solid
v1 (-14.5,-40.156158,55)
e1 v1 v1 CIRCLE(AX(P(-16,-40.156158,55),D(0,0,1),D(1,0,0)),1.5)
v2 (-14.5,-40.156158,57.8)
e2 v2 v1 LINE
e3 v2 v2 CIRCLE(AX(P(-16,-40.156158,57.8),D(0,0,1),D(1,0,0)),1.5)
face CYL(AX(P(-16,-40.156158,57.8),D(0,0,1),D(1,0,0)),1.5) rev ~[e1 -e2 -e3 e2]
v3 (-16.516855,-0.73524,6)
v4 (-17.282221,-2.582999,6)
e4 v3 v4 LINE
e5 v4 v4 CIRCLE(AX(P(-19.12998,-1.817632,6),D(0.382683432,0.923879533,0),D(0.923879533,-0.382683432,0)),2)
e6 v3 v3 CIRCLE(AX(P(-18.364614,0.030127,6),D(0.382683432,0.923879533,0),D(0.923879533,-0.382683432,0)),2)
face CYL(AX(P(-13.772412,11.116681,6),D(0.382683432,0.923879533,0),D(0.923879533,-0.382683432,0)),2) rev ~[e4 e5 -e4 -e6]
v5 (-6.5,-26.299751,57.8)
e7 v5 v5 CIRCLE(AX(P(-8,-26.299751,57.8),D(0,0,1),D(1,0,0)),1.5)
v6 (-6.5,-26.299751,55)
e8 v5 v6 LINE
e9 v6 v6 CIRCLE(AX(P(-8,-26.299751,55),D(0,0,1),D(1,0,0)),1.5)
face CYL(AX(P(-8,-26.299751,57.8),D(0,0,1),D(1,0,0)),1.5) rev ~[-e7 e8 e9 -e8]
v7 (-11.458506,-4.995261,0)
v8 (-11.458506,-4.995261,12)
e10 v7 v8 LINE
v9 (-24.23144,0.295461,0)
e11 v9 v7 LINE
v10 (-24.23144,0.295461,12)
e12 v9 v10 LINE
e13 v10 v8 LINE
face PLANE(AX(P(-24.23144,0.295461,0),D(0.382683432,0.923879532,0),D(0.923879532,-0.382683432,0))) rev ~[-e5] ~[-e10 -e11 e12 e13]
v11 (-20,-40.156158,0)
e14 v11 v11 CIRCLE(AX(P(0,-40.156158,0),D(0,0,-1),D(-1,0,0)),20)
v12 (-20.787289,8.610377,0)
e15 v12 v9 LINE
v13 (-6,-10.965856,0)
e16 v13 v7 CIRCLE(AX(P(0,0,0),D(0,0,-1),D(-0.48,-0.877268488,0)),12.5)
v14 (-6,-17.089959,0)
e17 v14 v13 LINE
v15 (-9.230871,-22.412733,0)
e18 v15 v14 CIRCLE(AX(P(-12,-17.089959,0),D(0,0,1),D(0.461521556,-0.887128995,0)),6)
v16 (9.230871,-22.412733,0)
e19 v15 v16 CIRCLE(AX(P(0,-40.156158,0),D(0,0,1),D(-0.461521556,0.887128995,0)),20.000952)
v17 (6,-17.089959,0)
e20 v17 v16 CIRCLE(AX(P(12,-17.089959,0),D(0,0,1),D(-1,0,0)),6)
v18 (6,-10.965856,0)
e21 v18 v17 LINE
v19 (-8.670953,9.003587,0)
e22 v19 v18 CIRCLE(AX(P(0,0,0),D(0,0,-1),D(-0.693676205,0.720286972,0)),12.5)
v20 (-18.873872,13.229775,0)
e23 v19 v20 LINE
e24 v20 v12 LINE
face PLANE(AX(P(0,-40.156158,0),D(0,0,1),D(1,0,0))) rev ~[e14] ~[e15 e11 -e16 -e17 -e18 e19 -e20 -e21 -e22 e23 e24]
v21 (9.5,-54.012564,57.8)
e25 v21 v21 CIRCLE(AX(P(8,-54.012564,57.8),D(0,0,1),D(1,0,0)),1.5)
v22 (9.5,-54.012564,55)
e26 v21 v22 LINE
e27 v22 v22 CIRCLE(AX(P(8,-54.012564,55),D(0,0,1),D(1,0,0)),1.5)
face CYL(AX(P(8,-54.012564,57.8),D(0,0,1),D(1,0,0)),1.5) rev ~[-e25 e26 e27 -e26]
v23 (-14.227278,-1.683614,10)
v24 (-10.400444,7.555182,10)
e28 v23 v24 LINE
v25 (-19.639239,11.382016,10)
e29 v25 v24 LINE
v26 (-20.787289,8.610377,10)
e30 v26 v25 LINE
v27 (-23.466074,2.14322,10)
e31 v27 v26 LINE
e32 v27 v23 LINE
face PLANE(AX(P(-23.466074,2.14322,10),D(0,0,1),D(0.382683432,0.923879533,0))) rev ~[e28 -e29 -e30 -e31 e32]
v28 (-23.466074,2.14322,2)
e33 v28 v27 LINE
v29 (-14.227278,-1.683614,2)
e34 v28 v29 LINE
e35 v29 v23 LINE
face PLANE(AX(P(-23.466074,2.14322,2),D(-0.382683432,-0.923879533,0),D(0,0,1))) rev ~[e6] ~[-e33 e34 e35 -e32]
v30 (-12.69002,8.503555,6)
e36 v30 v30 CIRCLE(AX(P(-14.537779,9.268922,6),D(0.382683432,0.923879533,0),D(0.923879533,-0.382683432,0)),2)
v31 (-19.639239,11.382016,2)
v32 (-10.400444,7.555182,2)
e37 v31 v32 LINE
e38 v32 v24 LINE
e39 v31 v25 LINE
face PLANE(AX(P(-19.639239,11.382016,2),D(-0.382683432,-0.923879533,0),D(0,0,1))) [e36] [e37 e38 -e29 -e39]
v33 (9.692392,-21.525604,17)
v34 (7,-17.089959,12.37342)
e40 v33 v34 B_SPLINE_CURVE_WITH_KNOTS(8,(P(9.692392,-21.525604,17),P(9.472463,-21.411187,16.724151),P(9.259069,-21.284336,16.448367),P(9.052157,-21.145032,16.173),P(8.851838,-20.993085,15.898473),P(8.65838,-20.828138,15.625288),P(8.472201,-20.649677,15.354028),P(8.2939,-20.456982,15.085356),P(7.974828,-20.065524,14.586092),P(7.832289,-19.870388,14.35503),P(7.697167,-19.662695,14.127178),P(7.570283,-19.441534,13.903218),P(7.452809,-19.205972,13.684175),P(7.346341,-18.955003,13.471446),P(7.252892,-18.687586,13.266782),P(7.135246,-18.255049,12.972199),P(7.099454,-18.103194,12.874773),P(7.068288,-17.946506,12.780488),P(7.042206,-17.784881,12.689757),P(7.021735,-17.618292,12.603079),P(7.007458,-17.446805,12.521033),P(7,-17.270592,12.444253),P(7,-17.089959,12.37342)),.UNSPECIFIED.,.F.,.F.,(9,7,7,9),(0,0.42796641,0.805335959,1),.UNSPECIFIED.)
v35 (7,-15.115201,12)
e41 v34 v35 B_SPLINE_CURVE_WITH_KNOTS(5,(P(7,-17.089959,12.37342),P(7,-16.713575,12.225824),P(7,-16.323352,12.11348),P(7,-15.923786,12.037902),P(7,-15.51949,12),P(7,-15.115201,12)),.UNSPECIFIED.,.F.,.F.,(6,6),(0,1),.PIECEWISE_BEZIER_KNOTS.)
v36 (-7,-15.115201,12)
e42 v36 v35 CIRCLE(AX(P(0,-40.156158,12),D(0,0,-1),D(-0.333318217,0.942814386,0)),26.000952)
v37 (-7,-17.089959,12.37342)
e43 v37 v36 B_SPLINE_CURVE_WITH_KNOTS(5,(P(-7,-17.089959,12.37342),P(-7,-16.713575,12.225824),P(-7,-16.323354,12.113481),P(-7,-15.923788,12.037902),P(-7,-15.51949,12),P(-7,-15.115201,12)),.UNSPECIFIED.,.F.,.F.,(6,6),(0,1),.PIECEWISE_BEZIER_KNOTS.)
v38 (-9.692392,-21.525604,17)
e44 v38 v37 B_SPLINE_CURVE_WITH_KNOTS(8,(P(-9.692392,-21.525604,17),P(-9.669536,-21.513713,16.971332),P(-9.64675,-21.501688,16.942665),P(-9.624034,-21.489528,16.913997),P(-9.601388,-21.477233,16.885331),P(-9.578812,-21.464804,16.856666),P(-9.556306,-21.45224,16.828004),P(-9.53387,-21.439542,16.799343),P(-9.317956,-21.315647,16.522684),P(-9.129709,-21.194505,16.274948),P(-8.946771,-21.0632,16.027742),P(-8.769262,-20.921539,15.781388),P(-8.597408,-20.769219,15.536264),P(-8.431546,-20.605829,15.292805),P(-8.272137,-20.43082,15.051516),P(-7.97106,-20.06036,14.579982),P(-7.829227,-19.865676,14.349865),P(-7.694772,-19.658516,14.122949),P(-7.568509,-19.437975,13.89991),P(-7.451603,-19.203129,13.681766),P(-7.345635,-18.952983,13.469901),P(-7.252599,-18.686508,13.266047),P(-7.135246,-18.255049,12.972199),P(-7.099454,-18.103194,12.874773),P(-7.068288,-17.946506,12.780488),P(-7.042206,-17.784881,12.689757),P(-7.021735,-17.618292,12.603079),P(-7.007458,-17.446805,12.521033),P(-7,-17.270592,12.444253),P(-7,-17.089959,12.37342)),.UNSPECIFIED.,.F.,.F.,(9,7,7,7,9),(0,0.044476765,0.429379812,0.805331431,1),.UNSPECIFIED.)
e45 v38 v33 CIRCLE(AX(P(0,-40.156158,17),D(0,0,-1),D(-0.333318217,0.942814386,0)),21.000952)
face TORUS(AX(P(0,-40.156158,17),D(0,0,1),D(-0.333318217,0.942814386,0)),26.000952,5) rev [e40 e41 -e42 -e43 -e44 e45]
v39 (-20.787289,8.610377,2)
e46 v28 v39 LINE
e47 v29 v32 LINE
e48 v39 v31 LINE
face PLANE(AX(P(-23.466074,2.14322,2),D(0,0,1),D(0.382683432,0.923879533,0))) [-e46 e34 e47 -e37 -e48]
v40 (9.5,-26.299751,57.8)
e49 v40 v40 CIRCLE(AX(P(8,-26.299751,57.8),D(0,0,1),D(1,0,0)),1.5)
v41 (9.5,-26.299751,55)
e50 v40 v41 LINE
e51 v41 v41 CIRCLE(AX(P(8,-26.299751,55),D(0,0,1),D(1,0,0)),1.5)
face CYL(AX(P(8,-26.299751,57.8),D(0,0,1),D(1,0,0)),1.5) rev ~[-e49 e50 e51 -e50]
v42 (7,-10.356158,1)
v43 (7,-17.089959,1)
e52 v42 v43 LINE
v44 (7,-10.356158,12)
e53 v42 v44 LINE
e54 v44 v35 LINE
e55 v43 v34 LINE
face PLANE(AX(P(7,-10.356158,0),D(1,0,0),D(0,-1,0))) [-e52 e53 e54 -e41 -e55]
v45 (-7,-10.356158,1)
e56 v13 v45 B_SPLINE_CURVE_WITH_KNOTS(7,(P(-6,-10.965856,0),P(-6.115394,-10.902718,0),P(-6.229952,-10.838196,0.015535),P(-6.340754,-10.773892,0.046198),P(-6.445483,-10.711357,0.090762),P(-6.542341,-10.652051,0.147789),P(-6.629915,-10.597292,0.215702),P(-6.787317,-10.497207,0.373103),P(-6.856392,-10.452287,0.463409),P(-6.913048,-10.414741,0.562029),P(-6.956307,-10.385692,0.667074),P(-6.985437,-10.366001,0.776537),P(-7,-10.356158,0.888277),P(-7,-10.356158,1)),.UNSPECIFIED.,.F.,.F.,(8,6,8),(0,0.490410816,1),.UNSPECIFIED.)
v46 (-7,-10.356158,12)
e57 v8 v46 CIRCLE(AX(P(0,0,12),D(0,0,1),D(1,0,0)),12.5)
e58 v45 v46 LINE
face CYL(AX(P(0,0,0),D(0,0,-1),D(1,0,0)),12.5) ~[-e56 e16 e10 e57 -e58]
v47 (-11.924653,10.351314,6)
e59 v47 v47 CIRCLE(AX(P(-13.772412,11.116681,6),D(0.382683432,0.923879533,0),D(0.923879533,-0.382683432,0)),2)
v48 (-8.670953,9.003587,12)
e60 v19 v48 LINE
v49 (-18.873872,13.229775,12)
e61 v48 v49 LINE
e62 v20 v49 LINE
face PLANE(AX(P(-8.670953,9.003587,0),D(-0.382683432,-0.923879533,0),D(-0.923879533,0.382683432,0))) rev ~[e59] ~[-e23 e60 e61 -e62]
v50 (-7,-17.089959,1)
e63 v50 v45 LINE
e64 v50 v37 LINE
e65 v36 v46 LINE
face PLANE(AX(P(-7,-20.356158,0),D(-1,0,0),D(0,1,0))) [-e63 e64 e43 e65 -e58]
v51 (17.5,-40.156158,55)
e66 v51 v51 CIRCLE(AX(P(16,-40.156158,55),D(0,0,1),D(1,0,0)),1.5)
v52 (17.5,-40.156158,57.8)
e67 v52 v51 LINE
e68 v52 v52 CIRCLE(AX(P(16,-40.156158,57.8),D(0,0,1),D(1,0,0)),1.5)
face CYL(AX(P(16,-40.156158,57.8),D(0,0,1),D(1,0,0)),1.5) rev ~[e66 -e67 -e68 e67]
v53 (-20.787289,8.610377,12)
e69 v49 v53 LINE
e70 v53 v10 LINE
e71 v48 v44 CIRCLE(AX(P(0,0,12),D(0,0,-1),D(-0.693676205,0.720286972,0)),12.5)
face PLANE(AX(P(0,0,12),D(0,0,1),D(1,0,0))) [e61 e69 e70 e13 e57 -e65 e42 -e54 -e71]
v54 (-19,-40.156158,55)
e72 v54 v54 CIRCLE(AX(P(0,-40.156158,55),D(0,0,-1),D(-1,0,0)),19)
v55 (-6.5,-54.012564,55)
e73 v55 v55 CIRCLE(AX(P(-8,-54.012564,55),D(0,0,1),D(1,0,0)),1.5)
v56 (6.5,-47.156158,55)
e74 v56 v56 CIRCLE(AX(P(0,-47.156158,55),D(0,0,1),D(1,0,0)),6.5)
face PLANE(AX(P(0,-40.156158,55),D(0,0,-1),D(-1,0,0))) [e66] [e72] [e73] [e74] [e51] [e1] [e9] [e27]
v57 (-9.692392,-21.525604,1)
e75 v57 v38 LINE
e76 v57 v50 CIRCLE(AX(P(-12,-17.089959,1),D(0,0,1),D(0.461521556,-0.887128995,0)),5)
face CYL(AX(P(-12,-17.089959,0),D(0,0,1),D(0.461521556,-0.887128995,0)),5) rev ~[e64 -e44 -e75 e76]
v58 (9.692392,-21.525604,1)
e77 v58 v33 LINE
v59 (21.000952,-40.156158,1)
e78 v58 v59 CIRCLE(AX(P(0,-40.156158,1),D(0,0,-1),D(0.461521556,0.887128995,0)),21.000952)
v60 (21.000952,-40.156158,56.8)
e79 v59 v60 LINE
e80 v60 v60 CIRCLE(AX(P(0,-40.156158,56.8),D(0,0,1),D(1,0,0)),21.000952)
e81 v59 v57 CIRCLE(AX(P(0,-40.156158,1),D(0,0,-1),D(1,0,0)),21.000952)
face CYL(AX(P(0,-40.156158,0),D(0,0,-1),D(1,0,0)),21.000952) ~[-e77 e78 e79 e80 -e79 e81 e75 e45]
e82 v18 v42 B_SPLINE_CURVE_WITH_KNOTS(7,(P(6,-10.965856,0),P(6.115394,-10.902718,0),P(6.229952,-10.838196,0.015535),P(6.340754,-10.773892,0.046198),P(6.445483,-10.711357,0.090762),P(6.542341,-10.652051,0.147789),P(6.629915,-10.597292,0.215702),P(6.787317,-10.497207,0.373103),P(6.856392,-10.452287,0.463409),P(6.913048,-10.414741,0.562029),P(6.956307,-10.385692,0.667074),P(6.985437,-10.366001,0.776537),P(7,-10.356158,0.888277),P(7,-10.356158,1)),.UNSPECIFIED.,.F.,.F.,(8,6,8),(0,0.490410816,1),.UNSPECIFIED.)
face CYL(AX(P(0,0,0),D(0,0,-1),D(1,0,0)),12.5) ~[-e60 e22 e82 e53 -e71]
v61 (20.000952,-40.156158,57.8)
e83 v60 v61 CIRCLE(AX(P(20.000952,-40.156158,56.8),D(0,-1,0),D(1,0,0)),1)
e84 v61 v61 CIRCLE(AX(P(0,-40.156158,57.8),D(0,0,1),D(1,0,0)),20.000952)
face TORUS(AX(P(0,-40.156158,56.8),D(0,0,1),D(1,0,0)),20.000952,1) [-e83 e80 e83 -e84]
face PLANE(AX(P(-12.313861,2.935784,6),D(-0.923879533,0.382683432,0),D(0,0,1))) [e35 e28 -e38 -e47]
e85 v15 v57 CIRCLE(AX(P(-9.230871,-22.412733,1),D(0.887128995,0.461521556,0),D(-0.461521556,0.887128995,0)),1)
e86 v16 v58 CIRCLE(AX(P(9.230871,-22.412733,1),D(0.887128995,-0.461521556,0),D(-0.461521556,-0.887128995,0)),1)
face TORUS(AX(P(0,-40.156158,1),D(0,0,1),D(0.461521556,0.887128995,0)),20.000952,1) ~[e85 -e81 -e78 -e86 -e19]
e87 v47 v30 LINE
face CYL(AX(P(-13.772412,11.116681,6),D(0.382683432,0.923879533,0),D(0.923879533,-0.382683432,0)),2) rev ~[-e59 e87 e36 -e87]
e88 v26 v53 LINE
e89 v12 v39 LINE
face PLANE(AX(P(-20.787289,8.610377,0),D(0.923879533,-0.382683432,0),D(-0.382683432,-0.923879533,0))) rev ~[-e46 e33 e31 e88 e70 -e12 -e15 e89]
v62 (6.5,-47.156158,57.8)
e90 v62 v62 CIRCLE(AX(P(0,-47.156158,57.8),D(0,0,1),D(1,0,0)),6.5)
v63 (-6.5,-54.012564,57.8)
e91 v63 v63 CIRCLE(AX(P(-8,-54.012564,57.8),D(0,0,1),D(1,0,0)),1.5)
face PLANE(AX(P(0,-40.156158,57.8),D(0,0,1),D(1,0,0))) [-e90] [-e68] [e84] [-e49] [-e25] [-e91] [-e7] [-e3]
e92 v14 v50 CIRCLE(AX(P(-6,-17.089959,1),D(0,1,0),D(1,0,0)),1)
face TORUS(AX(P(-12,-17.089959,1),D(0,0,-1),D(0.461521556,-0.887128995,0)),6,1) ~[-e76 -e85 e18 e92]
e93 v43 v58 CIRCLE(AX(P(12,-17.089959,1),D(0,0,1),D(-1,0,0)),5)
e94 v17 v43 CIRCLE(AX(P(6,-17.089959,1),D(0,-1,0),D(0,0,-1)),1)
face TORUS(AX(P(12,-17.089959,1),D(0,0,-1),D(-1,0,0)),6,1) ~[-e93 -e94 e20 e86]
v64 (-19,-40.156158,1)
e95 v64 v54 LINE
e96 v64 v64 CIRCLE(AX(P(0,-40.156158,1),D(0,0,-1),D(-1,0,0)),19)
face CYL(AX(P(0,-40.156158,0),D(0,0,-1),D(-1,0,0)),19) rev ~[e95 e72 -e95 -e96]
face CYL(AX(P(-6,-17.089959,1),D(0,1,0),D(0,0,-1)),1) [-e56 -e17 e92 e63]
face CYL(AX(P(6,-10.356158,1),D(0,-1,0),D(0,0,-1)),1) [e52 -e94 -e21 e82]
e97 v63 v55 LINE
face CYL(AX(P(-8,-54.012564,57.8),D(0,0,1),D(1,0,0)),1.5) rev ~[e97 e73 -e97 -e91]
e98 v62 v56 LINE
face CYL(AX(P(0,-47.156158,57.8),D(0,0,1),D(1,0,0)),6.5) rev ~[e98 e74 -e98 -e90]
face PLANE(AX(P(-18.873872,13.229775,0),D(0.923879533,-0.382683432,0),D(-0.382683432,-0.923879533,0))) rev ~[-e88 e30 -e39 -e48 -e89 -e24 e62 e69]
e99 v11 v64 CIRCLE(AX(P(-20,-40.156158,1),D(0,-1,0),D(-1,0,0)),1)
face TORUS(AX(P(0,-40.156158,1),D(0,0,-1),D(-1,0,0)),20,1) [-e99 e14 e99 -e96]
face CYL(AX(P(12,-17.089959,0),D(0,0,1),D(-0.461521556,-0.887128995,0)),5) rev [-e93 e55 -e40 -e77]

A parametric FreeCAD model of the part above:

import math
import FreeCAD as App
import Part
import Sketcher
Q = App.Units.Quantity


def edges_at(feature, points):
    """Names of the edges that pass closest to the given points."""
    edges = feature.Shape.Edges
    near = lambda p: min(range(len(edges)), key=lambda i: edges[i].distToShape(Part.Vertex(*p))[0])
    return sorted({f"Edge{near(p) + 1}" for p in points})


def add_polygon(sketch, points):
    """Adds a closed chain of lines whose ends are joined by coincident constraints."""
    first, n = sketch.GeometryCount, len(points)
    for a, b in zip(points, points[1:] + points[:1]):
        sketch.addGeometry(Part.LineSegment(App.Vector(*a, 0), App.Vector(*b, 0)), False)
    for i in range(n):
        sketch.addConstraint(Sketcher.Constraint("Coincident", first + i, 2, first + (i + 1) % n, 1))

doc = App.newDocument("Part")
body = doc.addObject("PartDesign::Body", "Body")

sketch1 = body.newObject("Sketcher::SketchObject", "Sketch")
sketch1.AttachmentSupport = (doc.getObject("XY_Plane"), [""])
sketch1.MapMode = "FlatFace"
sketch1.addGeometry(Part.Circle(App.Vector(0, 0, 0), App.Vector(0, 0, 1), 12), False)
sketch1.addConstraint([
    Sketcher.Constraint("Coincident", 0, 3, -1, 1),
    Sketcher.Constraint("Diameter", 0, 25.0),
])
pad1 = body.newObject("PartDesign::Pad", "Pad")
pad1.Profile = sketch1
pad1.Length = 12

sketch2 = body.newObject("Sketcher::SketchObject", "Sketch001")
sketch2.AttachmentSupport = (doc.getObject("XY_Plane"), [""])
sketch2.MapMode = "FlatFace"
sketch2.addGeometry([
    Part.LineSegment(App.Vector(7, -20, 0), App.Vector(7, -10, 0)),
    Part.ArcOfCircle(Part.Circle(App.Vector(0, 0, 0), App.Vector(0, 0, 1), 13), math.radians(-124), math.radians(-56)),
    Part.LineSegment(App.Vector(-7, -10, 0), App.Vector(-7, -20, 0)),
    Part.LineSegment(App.Vector(-7, -20, 0), App.Vector(7, -20, 0)),
    Part.LineSegment(App.Vector(-24, 0, 0), App.Vector(-11, -5, 0)),
    Part.ArcOfCircle(Part.Circle(App.Vector(0, 0, 0), App.Vector(0, 0, 1), 12), math.radians(134), math.radians(204)),
    Part.LineSegment(App.Vector(-9, 9, 0), App.Vector(-19, 13, 0)),
    Part.LineSegment(App.Vector(-19, 13, 0), App.Vector(-21, 9, 0)),
    Part.LineSegment(App.Vector(-21, 9, 0), App.Vector(-24, 0, 0)),
], False)
sketch2.addConstraint([
    Sketcher.Constraint("Coincident", 0, 2, 1, 2),
    Sketcher.Constraint("Coincident", 1, 1, 2, 1),
    Sketcher.Constraint("Coincident", 2, 2, 3, 1),
    Sketcher.Constraint("Coincident", 3, 2, 0, 1),
    Sketcher.Constraint("Coincident", 4, 2, 5, 2),
    Sketcher.Constraint("Coincident", 5, 1, 6, 1),
    Sketcher.Constraint("Coincident", 6, 2, 7, 1),
    Sketcher.Constraint("Coincident", 7, 2, 8, 1),
    Sketcher.Constraint("Coincident", 8, 2, 4, 1),
    Sketcher.Constraint("Vertical", 0),
    Sketcher.Constraint("Vertical", 2),
    Sketcher.Constraint("Horizontal", 3),
    Sketcher.Constraint("Coincident", 1, 3, -1, 1),
    Sketcher.Constraint("Coincident", 5, 3, -1, 1),
    Sketcher.Constraint("Equal", 1, 5),
    Sketcher.Constraint("Parallel", 4, 6),
    Sketcher.Constraint("Perpendicular", 6, 7),
    Sketcher.Constraint("Parallel", 7, 8),
    Sketcher.Constraint("Horizontal", 0, 2, 1, 1),
    Sketcher.Constraint("Radius", 1, 12.5),
    Sketcher.Constraint("DistanceX", 3, 1, 3, 2, 14.0),
    Sketcher.Constraint("DistanceY", 0, 1, 0, 2, 10.0),
    Sketcher.Constraint("Distance", 7, 5.0),
    Sketcher.Constraint("Distance", 8, 9.0),
    Sketcher.Constraint("Angle", 4, Q("-22.5 deg")),
    Sketcher.Constraint("Distance", 6, 11.043561),
    Sketcher.Constraint("DistanceY", 4, 2, -1, 1, 4.995261),
])
pad2 = body.newObject("PartDesign::Pad", "Pad001")
pad2.Profile = sketch2
pad2.Length = 12

sketch3 = body.newObject("Sketcher::SketchObject", "Sketch002")
sketch3.AttachmentSupport = (doc.getObject("XY_Plane"), [""])
sketch3.MapMode = "FlatFace"
sketch3.addGeometry(Part.Circle(App.Vector(0, -40, 0), App.Vector(0, 0, 1), 21), False)
sketch3.addConstraint([
    Sketcher.Constraint("PointOnObject", 0, 3, -2),
    Sketcher.Constraint("Diameter", 0, 42.001905),
    Sketcher.Constraint("DistanceY", 0, 3, -1, 1, 40.156158),
])
pad3 = body.newObject("PartDesign::Pad", "Pad002")
pad3.Profile = sketch3
pad3.Length = 57.8

sketch4 = body.newObject("Sketcher::SketchObject", "Sketch003")
sketch4.AttachmentSupport = (doc.getObject("XY_Plane"), [""])
sketch4.MapMode = "FlatFace"
sketch4.addGeometry(Part.Circle(App.Vector(0, -40, 0), App.Vector(0, 0, 1), 19), False)
sketch4.addConstraint([
    Sketcher.Constraint("PointOnObject", 0, 3, -2),
    Sketcher.Constraint("Diameter", 0, 38.0),
    Sketcher.Constraint("DistanceY", 0, 3, -1, 1, 40.156158),
])
pocket1 = body.newObject("PartDesign::Pocket", "Pocket")
pocket1.Profile = sketch4
pocket1.Length = 55
pocket1.Reversed = True

sketch5 = body.newObject("Sketcher::SketchObject", "Sketch004")
sketch5.AttachmentSupport = (doc.getObject("XY_Plane"), [""])
sketch5.MapMode = "FlatFace"
sketch5.AttachmentOffset = App.Placement(App.Vector(0, 0, 57.8), App.Rotation())
sketch5.addGeometry([
    Part.Circle(App.Vector(0, -47.2, 0), App.Vector(0, 0, 1), 6.5),
    Part.Circle(App.Vector(-16, -40.2, 0), App.Vector(0, 0, 1), 1.5),
    Part.Circle(App.Vector(-8, -54, 0), App.Vector(0, 0, 1), 1.5),
    Part.Circle(App.Vector(8, -54, 0), App.Vector(0, 0, 1), 1.5),
    Part.Circle(App.Vector(16, -40.2, 0), App.Vector(0, 0, 1), 1.5),
    Part.Circle(App.Vector(8, -26.3, 0), App.Vector(0, 0, 1), 1.5),
    Part.Circle(App.Vector(-8, -26.3, 0), App.Vector(0, 0, 1), 1.5),
], False)
sketch5.addConstraint([
    Sketcher.Constraint("Equal", 1, 2),
    Sketcher.Constraint("Equal", 2, 3),
    Sketcher.Constraint("Equal", 3, 4),
    Sketcher.Constraint("Equal", 4, 5),
    Sketcher.Constraint("Equal", 5, 6),
    Sketcher.Constraint("Symmetric", 2, 3, 3, 3, -2),
    Sketcher.Constraint("Symmetric", 1, 3, 4, 3, -2),
    Sketcher.Constraint("Symmetric", 5, 3, 6, 3, -2),
    Sketcher.Constraint("PointOnObject", 0, 3, -2),
    Sketcher.Constraint("Vertical", 3, 3, 5, 3),
    Sketcher.Constraint("Diameter", 0, 13.0),
    Sketcher.Constraint("Diameter", 1, 3.0),
    Sketcher.Constraint("DistanceX", 1, 3, -1, 1, 16.0),
    Sketcher.Constraint("DistanceX", 2, 3, -1, 1, 8.0),
    Sketcher.Constraint("DistanceY", 0, 3, 1, 3, 7.0),
    Sketcher.Constraint("DistanceY", 5, 3, -1, 1, 26.299751),
    Sketcher.Constraint("DistanceY", 0, 3, -1, 1, 47.156158),
    Sketcher.Constraint("DistanceY", 2, 3, -1, 1, 54.012564),
])
pocket2 = body.newObject("PartDesign::Pocket", "Pocket001")
pocket2.Profile = sketch5
pocket2.Type = "ThroughAll"
doc.recompute()

fillet = body.newObject("PartDesign::Fillet", "Fillet")
fillet.Base = (pocket2, edges_at(pocket2, [(0, -19.155, 12), (-7, -20.356, 6), (7, -20.356, 6)]))
fillet.Radius = 5
doc.recompute()

fillet2 = body.newObject("PartDesign::Fillet", "Fillet001")
fillet2.Base = (fillet, edges_at(fillet, [
    (-21.001, -40.156, 57.8),
    (19, -40.156, 0),
    (-7, -13.723, 0),
    (7, -13.723, 0),
    (-10.897, -58.109, 0),
    (7.726, -19.684, 0),
    (-7.726, -19.684, 0),
]))
fillet2.Radius = 1

sketch6 = body.newObject("Sketcher::SketchObject", "Sketch005")
sketch6.Placement = App.Placement(App.Vector(-20.787289, 8.610377, 0), App.Rotation(App.Vector(0, 0, 1), App.Vector(0.382683432, 0.923879533, 0), App.Vector(-0.923879533, 0.382683432, 0), "ZXY"))
add_polygon(sketch6, [(2, 3), (2, -7), (10, -7), (10, 3)])
sketch6.addConstraint([
    Sketcher.Constraint("Vertical", 0),
    Sketcher.Constraint("Horizontal", 1),
    Sketcher.Constraint("Vertical", 2),
    Sketcher.Constraint("Horizontal", 3),
    Sketcher.Constraint("DistanceX", 1, 1, 1, 2, 8.0),
    Sketcher.Constraint("DistanceY", 0, 2, 0, 1, 10.0),
    Sketcher.Constraint("DistanceX", -1, 1, 0, 2, 2.0),
    Sketcher.Constraint("DistanceY", 0, 2, -1, 1, 7.0),
])
pocket3 = body.newObject("PartDesign::Pocket", "Pocket002")
pocket3.Profile = sketch6
pocket3.Length = 10

sketch7 = body.newObject("Sketcher::SketchObject", "Sketch006")
sketch7.Placement = App.Placement(App.Vector(1.913417, 4.619398, 0), App.Rotation(App.Vector(0.923879533, -0.382683432, 0), App.Vector(0, 0, -1.000000001), App.Vector(0.382683432, 0.923879533, 0), "ZXY"))
sketch7.addGeometry(Part.Circle(App.Vector(-17, -6, 0), App.Vector(0, 0, 1), 2), False)
sketch7.addConstraint([
    Sketcher.Constraint("Diameter", 0, 4.0),
    Sketcher.Constraint("DistanceY", 0, 3, -1, 1, 6.0),
    Sketcher.Constraint("DistanceX", 0, 3, -1, 1, 16.97822),
])
pocket4 = body.newObject("PartDesign::Pocket", "Pocket003")
pocket4.Profile = sketch7
pocket4.Type = "ThroughAll"

doc.recompute()
